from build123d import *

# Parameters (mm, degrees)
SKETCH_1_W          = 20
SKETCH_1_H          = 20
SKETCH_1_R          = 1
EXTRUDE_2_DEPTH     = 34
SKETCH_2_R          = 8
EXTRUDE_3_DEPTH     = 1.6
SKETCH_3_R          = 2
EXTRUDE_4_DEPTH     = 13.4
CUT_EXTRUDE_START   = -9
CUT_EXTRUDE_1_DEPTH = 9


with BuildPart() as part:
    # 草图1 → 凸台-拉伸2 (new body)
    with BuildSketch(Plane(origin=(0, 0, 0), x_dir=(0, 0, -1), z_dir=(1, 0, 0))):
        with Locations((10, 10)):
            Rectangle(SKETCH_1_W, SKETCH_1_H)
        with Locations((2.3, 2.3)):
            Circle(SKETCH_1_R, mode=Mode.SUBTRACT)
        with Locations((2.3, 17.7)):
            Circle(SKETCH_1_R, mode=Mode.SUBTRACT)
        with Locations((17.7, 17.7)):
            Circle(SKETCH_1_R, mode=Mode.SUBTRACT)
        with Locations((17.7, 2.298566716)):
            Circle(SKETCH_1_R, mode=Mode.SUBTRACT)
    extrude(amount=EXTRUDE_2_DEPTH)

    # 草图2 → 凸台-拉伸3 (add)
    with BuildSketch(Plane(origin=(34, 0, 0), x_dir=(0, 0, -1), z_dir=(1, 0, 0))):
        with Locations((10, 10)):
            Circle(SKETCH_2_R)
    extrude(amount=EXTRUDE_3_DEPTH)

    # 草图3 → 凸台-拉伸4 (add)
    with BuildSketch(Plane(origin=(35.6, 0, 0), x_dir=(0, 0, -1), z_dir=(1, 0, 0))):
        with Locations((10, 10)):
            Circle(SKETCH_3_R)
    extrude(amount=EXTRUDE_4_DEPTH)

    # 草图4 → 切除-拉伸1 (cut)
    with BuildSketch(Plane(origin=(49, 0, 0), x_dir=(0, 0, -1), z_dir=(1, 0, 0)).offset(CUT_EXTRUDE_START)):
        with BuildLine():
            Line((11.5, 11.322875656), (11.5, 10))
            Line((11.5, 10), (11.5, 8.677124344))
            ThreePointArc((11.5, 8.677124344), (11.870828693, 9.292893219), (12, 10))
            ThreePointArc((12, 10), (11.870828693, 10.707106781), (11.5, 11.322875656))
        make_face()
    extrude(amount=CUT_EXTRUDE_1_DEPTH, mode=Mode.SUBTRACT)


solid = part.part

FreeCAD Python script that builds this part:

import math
import FreeCAD as App
import Part
import Sketcher
from FreeCAD import Vector

doc = App.newDocument("Part")
body = doc.addObject("PartDesign::Body", "Body")

# Sketch on YZ plane
sketch1 = doc.addObject("Sketcher::SketchObject", "Sketch")
body.addObject(sketch1)
sketch1.AttachmentSupport = (doc.YZ_Plane, [""])
sketch1.MapMode = "FlatFace"
sketch1.addGeometry(Part.LineSegment(Vector(20, 0, 0), Vector(0, 0, 0)), False)
sketch1.addGeometry(Part.LineSegment(Vector(0, 0, 0), Vector(0, -20, 0)), False)
sketch1.addGeometry(Part.LineSegment(Vector(0, -20, 0), Vector(20, -20, 0)), False)
sketch1.addGeometry(Part.LineSegment(Vector(20, -20, 0), Vector(20, 0, 0)), False)
sketch1.addGeometry(Part.Circle(Vector(2.3, -2.3, 0), Vector(0, 0, 1), 1), False)
sketch1.addGeometry(Part.Circle(Vector(2.3, -17.7, 0), Vector(0, 0, 1), 1), False)
sketch1.addGeometry(Part.Circle(Vector(17.7, -2.3, 0), Vector(0, 0, 1), 1), False)
sketch1.addGeometry(Part.Circle(Vector(17.7, -17.7, 0), Vector(0, 0, 1), 1), False)
sketch1.addConstraint(Sketcher.Constraint("Coincident", 0, 2, 1, 1))
sketch1.addConstraint(Sketcher.Constraint("Coincident", 1, 2, 2, 1))
sketch1.addConstraint(Sketcher.Constraint("Coincident", 2, 2, 3, 1))
sketch1.addConstraint(Sketcher.Constraint("Coincident", 3, 2, 0, 1))
sketch1.addConstraint(Sketcher.Constraint("Horizontal", 0))
sketch1.addConstraint(Sketcher.Constraint("Vertical", 1))
sketch1.addConstraint(Sketcher.Constraint("Horizontal", 2))
sketch1.addConstraint(Sketcher.Constraint("Vertical", 3))
sketch1.addConstraint(Sketcher.Constraint("Coincident", 0, 2, -1, 1))
sketch1.addConstraint(Sketcher.Constraint("Equal", 4, 5))
sketch1.addConstraint(Sketcher.Constraint("Equal", 5, 6))
sketch1.addConstraint(Sketcher.Constraint("Equal", 6, 7))
sketch1.addConstraint(Sketcher.Constraint("Horizontal", 4, 3, 6, 3))
sketch1.addConstraint(Sketcher.Constraint("Horizontal", 5, 3, 7, 3))
sketch1.addConstraint(Sketcher.Constraint("Vertical", 6, 3, 7, 3))
sketch1.addConstraint(Sketcher.Constraint("Equal", 2, 1))
sketch1.addConstraint(Sketcher.Constraint("Diameter", 4, 2.0))
sketch1.addConstraint(Sketcher.Constraint("DistanceX", 0, 2, 0, 1, 20.0))
sketch1.addConstraint(Sketcher.Constraint("DistanceX", -1, 1, 4, 3, 2.3))
sketch1.addConstraint(Sketcher.Constraint("DistanceY", 4, 3, -1, 1, 2.3))
sketch1.addConstraint(Sketcher.Constraint("DistanceY", 5, 3, -1, 1, 17.7))
sketch1.addConstraint(Sketcher.Constraint("DistanceX", -1, 1, 6, 3, 17.7))
sketch1.addConstraint(Sketcher.Constraint("DistanceX", -1, 1, 5, 3, 2.298567))
pad1 = doc.addObject("PartDesign::Pad", "Pad")
body.addObject(pad1)
pad1.Profile = sketch1
pad1.Length = 34

# Sketch on YZ plane
sketch2 = doc.addObject("Sketcher::SketchObject", "Sketch001")
body.addObject(sketch2)
sketch2.AttachmentSupport = (doc.YZ_Plane, [""])
sketch2.MapMode = "FlatFace"
sketch2.AttachmentOffset = App.Placement(Vector(0, 0, 34), App.Rotation())
sketch2.addGeometry(Part.Circle(Vector(10, -10, 0), Vector(0, 0, 1), 8), False)
sketch2.addConstraint(Sketcher.Constraint("Diameter", 0, 16.0))
sketch2.addConstraint(Sketcher.Constraint("DistanceX", -1, 1, 0, 3, 10.0))
sketch2.addConstraint(Sketcher.Constraint("DistanceY", 0, 3, -1, 1, 10.0))
pad2 = doc.addObject("PartDesign::Pad", "Pad001")
body.addObject(pad2)
pad2.Profile = sketch2
pad2.Length = 1.6

# Sketch on YZ plane
sketch3 = doc.addObject("Sketcher::SketchObject", "Sketch002")
body.addObject(sketch3)
sketch3.AttachmentSupport = (doc.YZ_Plane, [""])
sketch3.MapMode = "FlatFace"
sketch3.AttachmentOffset = App.Placement(Vector(0, 0, 35.6), App.Rotation())
sketch3.addGeometry(Part.Circle(Vector(10, -10, 0), Vector(0, 0, 1), 2), False)
sketch3.addConstraint(Sketcher.Constraint("Diameter", 0, 4.0))
sketch3.addConstraint(Sketcher.Constraint("DistanceX", -1, 1, 0, 3, 10.0))
sketch3.addConstraint(Sketcher.Constraint("DistanceY", 0, 3, -1, 1, 10.0))
pad3 = doc.addObject("PartDesign::Pad", "Pad002")
body.addObject(pad3)
pad3.Profile = sketch3
pad3.Length = 13.4

# Sketch on YZ plane
sketch4 = doc.addObject("Sketcher::SketchObject", "Sketch003")
body.addObject(sketch4)
sketch4.AttachmentSupport = (doc.YZ_Plane, [""])
sketch4.MapMode = "FlatFace"
sketch4.AttachmentOffset = App.Placement(Vector(0, 0, 40), App.Rotation())
sketch4.addGeometry(Part.LineSegment(Vector(11.3, -11.5, 0), Vector(8.7, -11.5, 0)), False)
sketch4.addGeometry(Part.ArcOfCircle(Part.Circle(Vector(10, -10, 0), Vector(0, 0, 1), 2), math.radians(-131), math.radians(-90)), False)
sketch4.addGeometry(Part.ArcOfCircle(Part.Circle(Vector(10, -10, 0), Vector(0, 0, 1), 2), math.radians(-90), math.radians(-49)), False)
sketch4.addConstraint(Sketcher.Constraint("Coincident", 0, 2, 1, 1))
sketch4.addConstraint(Sketcher.Constraint("Tangent", 1, 2, 2, 1))
sketch4.addConstraint(Sketcher.Constraint("Coincident", 2, 2, 0, 1))
sketch4.addConstraint(Sketcher.Constraint("Horizontal", 0))
sketch4.addConstraint(Sketcher.Constraint("Equal", 1, 2))
sketch4.addConstraint(Sketcher.Constraint("Vertical", 2, 3, 1, 2))
sketch4.addConstraint(Sketcher.Constraint("Radius", 1, 2.0))
sketch4.addConstraint(Sketcher.Constraint("DistanceX", -1, 1, 1, 3, 10.0))
sketch4.addConstraint(Sketcher.Constraint("DistanceY", 1, 3, -1, 1, 10.0))
sketch4.addConstraint(Sketcher.Constraint("DistanceY", 0, 2, -1, 1, 11.5))
pocket1 = doc.addObject("PartDesign::Pocket", "Pocket")
body.addObject(pocket1)
pocket1.Profile = sketch4
pocket1.Length = 9
pocket1.Reversed = True

doc.recompute()
